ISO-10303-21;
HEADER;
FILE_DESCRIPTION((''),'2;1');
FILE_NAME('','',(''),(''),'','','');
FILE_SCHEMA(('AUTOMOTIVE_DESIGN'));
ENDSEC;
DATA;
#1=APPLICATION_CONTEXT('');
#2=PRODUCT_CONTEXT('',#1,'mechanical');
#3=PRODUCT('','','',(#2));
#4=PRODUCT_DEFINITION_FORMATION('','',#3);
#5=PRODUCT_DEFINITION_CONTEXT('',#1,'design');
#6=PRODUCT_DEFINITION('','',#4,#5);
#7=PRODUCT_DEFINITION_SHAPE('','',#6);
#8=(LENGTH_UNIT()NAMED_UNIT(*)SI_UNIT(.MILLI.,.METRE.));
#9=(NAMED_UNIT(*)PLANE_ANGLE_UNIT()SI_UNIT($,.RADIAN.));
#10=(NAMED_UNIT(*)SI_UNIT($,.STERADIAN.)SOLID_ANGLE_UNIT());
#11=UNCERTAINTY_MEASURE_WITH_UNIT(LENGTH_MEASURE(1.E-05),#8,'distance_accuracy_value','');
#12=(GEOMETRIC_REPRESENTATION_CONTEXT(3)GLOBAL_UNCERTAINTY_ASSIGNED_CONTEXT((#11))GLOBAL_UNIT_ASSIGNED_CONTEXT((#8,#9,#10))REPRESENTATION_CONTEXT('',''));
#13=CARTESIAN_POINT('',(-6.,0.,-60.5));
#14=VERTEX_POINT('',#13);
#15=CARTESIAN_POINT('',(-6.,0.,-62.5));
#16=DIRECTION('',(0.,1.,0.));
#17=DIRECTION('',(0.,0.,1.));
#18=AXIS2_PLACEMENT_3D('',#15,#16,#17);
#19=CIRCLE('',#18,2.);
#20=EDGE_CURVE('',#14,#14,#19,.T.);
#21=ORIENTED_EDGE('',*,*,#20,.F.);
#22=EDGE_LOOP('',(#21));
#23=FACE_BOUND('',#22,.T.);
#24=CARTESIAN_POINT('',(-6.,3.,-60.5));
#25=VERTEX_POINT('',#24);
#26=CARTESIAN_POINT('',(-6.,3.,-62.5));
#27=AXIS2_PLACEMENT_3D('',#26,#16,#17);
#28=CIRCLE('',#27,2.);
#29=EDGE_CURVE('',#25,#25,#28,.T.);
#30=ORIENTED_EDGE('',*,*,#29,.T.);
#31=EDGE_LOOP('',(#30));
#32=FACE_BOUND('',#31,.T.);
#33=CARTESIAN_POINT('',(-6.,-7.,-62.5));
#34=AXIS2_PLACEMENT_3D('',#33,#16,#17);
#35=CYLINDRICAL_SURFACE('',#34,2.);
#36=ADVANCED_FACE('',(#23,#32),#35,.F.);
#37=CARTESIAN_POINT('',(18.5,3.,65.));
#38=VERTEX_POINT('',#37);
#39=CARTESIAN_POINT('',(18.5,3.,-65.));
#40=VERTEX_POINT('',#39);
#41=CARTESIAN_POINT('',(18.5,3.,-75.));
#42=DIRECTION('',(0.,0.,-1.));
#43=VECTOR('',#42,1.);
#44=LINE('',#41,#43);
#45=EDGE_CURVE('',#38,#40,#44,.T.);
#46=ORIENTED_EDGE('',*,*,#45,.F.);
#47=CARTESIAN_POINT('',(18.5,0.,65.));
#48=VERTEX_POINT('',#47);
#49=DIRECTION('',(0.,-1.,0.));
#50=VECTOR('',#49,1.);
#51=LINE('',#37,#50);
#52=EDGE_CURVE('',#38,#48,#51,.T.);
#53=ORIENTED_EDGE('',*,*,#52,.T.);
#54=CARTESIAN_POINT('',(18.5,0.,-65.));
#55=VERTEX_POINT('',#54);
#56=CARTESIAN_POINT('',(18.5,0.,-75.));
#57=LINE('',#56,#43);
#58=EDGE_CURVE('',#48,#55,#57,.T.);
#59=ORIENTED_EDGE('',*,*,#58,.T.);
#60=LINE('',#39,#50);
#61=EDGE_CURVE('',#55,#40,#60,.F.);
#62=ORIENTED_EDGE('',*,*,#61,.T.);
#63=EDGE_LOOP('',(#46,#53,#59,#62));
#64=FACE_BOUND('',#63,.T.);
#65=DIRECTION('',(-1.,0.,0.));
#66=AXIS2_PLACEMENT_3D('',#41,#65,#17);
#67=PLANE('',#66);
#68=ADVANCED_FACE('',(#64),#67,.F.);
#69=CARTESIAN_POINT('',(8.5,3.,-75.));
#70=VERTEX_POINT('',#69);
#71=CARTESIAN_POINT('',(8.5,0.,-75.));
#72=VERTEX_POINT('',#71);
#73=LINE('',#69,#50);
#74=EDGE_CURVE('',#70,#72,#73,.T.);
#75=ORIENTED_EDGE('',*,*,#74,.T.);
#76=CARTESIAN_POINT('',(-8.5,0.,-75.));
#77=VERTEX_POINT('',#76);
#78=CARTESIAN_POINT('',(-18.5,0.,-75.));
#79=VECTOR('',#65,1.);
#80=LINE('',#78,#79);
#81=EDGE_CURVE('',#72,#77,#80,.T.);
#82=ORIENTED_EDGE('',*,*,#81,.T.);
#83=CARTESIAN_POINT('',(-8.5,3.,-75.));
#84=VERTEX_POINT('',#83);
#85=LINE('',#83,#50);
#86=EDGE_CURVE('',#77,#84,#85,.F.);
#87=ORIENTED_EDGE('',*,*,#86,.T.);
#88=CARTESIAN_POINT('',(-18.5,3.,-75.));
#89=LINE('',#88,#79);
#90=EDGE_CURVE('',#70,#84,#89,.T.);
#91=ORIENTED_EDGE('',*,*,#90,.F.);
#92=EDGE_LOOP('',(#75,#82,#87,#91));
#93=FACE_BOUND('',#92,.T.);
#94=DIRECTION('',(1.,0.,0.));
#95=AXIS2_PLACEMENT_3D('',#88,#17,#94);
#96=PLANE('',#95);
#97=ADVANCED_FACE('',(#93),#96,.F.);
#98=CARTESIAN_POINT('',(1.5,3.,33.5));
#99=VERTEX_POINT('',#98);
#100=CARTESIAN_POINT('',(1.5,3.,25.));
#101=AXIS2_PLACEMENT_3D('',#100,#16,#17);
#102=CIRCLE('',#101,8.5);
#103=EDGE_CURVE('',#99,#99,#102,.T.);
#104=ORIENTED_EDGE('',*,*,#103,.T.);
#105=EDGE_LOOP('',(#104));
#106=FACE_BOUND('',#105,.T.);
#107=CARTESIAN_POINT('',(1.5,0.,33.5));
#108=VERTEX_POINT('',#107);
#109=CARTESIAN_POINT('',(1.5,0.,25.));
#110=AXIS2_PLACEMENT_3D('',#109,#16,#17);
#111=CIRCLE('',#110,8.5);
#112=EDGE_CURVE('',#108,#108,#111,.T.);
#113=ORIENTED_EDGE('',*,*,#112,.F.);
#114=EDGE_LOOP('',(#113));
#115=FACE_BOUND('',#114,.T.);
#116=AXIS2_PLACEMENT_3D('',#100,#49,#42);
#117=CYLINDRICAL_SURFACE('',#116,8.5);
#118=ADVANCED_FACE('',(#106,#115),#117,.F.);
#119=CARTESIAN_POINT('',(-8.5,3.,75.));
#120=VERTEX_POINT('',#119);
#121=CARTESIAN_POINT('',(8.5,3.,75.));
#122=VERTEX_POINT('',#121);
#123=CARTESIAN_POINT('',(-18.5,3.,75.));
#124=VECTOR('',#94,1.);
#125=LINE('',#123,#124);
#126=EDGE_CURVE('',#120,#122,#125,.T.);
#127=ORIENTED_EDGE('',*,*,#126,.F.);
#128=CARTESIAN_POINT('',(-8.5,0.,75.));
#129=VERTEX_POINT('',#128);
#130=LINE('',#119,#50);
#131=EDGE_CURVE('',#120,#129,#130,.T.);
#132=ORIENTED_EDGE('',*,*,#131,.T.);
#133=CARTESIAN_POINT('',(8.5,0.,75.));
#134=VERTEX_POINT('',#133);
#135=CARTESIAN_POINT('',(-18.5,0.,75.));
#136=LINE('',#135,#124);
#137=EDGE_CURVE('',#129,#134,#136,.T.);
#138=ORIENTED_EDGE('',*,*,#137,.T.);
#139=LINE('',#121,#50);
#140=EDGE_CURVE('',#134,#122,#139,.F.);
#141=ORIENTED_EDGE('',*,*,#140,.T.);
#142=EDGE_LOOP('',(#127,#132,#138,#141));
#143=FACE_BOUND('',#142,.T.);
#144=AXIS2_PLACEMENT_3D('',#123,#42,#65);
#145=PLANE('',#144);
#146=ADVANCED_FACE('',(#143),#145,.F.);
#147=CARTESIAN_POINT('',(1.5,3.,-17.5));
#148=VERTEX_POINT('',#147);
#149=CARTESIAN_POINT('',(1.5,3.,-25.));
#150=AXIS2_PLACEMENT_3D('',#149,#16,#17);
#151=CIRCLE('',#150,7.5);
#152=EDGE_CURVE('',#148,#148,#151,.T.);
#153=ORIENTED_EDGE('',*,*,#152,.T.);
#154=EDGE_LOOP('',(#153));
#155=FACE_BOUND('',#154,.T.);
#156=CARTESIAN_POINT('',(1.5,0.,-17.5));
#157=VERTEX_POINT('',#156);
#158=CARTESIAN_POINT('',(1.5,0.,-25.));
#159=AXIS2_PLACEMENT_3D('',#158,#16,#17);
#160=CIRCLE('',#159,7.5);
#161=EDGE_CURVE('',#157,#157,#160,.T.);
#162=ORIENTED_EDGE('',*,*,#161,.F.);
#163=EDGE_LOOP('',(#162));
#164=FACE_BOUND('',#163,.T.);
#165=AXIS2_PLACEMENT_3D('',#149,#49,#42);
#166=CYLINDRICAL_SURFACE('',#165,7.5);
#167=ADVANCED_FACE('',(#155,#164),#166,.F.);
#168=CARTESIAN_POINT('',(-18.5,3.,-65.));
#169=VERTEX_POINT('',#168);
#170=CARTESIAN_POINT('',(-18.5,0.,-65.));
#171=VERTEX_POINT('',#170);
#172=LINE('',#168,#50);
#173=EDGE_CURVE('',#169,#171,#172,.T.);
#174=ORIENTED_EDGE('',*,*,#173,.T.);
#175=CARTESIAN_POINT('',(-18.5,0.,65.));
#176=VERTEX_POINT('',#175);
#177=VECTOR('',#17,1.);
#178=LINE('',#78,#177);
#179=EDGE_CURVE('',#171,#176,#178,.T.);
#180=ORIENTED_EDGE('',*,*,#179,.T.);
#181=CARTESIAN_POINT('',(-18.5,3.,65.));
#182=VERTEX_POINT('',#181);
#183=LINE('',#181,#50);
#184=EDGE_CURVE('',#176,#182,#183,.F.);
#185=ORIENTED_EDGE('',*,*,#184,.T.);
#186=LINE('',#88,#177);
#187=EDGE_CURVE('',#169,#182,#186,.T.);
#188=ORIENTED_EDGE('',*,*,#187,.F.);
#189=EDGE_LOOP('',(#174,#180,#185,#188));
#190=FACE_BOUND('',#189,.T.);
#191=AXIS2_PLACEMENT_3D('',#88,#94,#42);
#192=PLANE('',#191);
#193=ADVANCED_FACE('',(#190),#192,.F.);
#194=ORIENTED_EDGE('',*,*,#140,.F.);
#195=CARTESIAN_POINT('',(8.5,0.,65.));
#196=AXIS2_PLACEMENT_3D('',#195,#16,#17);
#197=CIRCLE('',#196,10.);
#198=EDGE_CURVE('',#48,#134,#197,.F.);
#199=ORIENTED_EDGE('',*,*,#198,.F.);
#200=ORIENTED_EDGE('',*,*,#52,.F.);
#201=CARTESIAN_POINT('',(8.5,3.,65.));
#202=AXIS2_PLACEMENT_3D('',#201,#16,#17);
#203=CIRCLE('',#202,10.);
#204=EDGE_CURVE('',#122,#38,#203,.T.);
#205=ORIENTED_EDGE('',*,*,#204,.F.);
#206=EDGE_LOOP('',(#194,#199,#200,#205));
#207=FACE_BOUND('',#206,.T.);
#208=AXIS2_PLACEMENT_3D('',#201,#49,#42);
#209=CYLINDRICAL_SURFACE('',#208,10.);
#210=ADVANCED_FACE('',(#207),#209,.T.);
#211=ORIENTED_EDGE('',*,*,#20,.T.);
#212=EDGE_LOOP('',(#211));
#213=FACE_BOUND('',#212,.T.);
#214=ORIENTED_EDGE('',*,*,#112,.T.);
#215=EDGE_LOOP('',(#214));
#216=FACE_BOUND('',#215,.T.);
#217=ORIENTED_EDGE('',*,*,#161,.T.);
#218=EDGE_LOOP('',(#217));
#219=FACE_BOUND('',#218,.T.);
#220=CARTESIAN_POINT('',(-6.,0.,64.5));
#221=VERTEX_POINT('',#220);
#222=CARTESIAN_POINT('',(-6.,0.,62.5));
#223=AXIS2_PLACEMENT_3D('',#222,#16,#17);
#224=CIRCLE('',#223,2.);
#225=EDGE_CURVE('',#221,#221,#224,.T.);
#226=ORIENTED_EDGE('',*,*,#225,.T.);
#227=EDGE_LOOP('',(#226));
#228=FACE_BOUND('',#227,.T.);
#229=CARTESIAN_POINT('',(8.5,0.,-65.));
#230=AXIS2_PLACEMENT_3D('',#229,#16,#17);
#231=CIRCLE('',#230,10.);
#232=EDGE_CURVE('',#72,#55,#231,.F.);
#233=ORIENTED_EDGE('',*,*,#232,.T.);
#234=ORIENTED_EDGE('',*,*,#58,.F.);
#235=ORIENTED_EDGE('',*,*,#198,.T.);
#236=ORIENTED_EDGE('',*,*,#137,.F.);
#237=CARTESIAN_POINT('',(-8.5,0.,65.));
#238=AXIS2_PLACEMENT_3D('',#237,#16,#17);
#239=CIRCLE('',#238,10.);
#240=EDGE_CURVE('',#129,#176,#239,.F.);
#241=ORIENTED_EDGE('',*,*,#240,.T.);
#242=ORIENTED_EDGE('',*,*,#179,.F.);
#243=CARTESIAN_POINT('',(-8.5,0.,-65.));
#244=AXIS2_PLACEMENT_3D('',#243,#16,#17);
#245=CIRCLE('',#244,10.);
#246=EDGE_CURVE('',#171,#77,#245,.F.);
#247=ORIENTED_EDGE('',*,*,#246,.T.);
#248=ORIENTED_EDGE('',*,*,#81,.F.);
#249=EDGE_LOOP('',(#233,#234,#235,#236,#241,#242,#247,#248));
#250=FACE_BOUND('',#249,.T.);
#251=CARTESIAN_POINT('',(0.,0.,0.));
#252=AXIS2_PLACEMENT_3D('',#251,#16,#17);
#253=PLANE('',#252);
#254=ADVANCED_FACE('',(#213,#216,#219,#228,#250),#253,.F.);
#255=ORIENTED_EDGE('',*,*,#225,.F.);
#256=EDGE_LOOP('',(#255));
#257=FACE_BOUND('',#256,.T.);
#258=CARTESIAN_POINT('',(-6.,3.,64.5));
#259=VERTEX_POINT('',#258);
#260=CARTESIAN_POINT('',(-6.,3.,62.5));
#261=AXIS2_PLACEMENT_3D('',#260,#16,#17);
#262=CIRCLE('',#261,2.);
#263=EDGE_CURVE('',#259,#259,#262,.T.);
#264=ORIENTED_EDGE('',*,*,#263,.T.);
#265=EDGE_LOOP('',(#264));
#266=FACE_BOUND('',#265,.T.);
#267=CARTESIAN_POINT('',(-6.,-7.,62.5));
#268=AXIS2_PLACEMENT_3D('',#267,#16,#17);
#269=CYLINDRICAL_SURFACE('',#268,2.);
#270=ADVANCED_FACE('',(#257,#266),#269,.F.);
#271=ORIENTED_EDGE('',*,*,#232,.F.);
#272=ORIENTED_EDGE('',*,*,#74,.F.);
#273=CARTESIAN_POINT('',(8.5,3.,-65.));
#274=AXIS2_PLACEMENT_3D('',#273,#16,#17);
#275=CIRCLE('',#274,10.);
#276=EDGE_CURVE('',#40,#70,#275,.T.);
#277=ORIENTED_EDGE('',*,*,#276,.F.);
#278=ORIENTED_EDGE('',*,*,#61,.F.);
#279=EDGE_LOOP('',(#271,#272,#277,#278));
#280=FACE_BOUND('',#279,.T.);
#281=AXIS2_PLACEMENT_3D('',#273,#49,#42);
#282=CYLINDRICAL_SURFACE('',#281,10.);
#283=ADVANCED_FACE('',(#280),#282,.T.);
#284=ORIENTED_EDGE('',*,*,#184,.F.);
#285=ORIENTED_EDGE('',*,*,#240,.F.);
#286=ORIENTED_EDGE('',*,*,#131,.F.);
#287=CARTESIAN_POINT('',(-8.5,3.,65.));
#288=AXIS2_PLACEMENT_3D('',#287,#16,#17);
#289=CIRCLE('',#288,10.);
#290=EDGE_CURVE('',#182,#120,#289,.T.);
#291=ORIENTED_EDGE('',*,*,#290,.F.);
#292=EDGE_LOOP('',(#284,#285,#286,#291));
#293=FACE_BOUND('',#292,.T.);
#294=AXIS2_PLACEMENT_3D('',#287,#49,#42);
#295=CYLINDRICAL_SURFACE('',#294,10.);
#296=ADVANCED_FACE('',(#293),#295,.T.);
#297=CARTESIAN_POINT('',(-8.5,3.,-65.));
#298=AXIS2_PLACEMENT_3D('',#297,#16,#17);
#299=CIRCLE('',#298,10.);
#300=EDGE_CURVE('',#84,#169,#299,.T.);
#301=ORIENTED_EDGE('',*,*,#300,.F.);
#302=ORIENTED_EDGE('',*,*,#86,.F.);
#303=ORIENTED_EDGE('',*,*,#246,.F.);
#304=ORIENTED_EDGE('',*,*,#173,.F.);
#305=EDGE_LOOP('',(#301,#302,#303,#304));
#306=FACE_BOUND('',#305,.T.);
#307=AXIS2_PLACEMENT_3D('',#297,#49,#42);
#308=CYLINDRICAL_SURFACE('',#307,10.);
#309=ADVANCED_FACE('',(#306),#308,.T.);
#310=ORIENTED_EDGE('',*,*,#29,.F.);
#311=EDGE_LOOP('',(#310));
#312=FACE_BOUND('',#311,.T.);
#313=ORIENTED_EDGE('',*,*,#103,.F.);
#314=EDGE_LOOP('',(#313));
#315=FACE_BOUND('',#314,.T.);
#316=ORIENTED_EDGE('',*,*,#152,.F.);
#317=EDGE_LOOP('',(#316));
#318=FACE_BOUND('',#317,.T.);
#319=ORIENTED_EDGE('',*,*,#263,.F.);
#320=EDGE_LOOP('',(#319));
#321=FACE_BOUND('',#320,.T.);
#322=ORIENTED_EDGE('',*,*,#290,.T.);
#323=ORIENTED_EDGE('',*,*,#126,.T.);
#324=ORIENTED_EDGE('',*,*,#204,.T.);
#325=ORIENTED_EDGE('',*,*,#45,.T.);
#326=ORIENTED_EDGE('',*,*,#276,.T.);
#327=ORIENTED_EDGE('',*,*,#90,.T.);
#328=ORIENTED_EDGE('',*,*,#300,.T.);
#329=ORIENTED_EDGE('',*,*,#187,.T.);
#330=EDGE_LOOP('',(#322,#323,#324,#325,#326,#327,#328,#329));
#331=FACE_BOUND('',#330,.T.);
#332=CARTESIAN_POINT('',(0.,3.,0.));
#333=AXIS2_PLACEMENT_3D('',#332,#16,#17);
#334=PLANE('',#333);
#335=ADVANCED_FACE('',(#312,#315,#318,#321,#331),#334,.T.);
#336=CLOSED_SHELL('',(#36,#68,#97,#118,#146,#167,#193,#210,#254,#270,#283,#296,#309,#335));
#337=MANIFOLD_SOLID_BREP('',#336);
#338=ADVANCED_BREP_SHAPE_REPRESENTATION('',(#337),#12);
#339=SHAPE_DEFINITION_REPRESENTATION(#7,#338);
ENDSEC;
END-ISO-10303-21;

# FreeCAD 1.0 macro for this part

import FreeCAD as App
import Part
import Sketcher

V = App.Vector
Q = App.Units.Quantity


def edges_at(feature, points):
    """Names of the edges that pass closest to the given points."""
    edges = feature.Shape.Edges
    near = lambda p: min(range(len(edges)), key=lambda i: edges[i].distToShape(Part.Vertex(*p))[0])
    return sorted({f"Edge{near(p) + 1}" for p in points})

doc = App.newDocument("Part")
params = doc.addObject("Spreadsheet::Sheet", "Params")
for row, (alias, value) in enumerate([
    ("sketch1_diameter", "17 mm"),
    ("sketch1_diameter2", "15 mm"),
    ("sketch1_width", "37 mm"),
    ("sketch1_height", "150 mm"),
    ("pad1_length", "3 mm"),
    ("fillet_radius", "10 mm"),
    ("sketch2_diameter", "4 mm"),
    ("pocket1_length", "10 mm"),
], start=1):
    params.set(f"A{row}", alias)
    params.set(f"B{row}", "=" + value)
    params.setAlias(f"B{row}", alias)

body = doc.addObject("PartDesign::Body", "Body")

# Sketch on XZ plane
sketch1 = body.newObject("Sketcher::SketchObject", "Sketch")
sketch1.AttachmentSupport = (doc.getObject("XZ_Plane"), [""])
sketch1.MapMode = "FlatFace"
sketch1.addGeometry([
    Part.LineSegment(V(-18.5, -75, 0), V(-18.5, 75, 0)),  # 0
    Part.LineSegment(V(-18.5, 75, 0), V(18.5, 75, 0)),  # 1
    Part.LineSegment(V(18.5, 75, 0), V(18.5, -75, 0)),  # 2
    Part.LineSegment(V(18.5, -75, 0), V(-18.5, -75, 0)),  # 3
    Part.Circle(V(1.5, 25, 0), V(0, 0, 1), 8.5),  # 4
    Part.Circle(V(1.5, -25, 0), V(0, 0, 1), 7.5),  # 5
], False)
sketch1.addConstraint([
    Sketcher.Constraint("Coincident", 0, 2, 1, 1),
    Sketcher.Constraint("Coincident", 1, 2, 2, 1),
    Sketcher.Constraint("Coincident", 2, 2, 3, 1),
    Sketcher.Constraint("Coincident", 3, 2, 0, 1),
    Sketcher.Constraint("Vertical", 0),
    Sketcher.Constraint("Horizontal", 1),
    Sketcher.Constraint("Vertical", 2),
    Sketcher.Constraint("Horizontal", 3),
    Sketcher.Constraint("Symmetric", 0, 2, 2, 2, -1, 1),
    Sketcher.Constraint("Symmetric", 4, 3, 5, 3, -1),
    Sketcher.Constraint("Diameter", 4, Q("17 mm")),
    Sketcher.Constraint("Diameter", 5, Q("15 mm")),
    Sketcher.Constraint("DistanceX", 1, 1, 1, 2, Q("37 mm")),
    Sketcher.Constraint("DistanceY", 0, 1, 0, 2, Q("150 mm")),
    Sketcher.Constraint("DistanceY", -1, 1, 4, 3, Q("25 mm")),
    Sketcher.Constraint("DistanceX", 0, 2, 4, 3, Q("20 mm")),
])
sketch1.setExpression("Constraints[10]", "Params.sketch1_diameter")
sketch1.setExpression("Constraints[11]", "Params.sketch1_diameter2")
sketch1.setExpression("Constraints[12]", "Params.sketch1_width")
sketch1.setExpression("Constraints[13]", "Params.sketch1_height")
pad1 = body.newObject("PartDesign::Pad", "Pad")
pad1.Profile = sketch1
pad1.setExpression("Length", "Params.pad1_length")
pad1.Reversed = True
doc.recompute()

fillet = body.newObject("PartDesign::Fillet", "Fillet")
fillet.Base = (pad1, edges_at(pad1, [
    (18.5, 1.5, 75),
    (-18.5, 1.5, 75),
    (-18.5, 1.5, -75),
    (18.5, 1.5, -75),
]))
fillet.setExpression("Radius", "Params.fillet_radius")

# Sketch on XZ plane
sketch2 = body.newObject("Sketcher::SketchObject", "Sketch001")
sketch2.AttachmentSupport = (doc.getObject("XZ_Plane"), [""])
sketch2.MapMode = "FlatFace"
sketch2.AttachmentOffset = App.Placement(V(0, 0, -3), App.Rotation())
sketch2.addGeometry([
    Part.Circle(V(-6, -62.5, 0), V(0, 0, 1), 2),
    Part.Circle(V(-6, 62.5, 0), V(0, 0, 1), 2),
], False)
sketch2.addConstraint([
    Sketcher.Constraint("Equal", 0, 1),
    Sketcher.Constraint("Symmetric", 0, 3, 1, 3, -1),
    Sketcher.Constraint("Diameter", 0, Q("4 mm")),
    Sketcher.Constraint("DistanceX", 0, 3, -1, 1, Q("6 mm")),
    Sketcher.Constraint("DistanceY", 0, 3, 1, 3, Q("125 mm")),
])
sketch2.setExpression("Constraints[2]", "Params.sketch2_diameter")
pocket1 = body.newObject("PartDesign::Pocket", "Pocket")
pocket1.Profile = sketch2
pocket1.setExpression("Length", "Params.pocket1_length")
pocket1.Reversed = True

doc.recompute()
